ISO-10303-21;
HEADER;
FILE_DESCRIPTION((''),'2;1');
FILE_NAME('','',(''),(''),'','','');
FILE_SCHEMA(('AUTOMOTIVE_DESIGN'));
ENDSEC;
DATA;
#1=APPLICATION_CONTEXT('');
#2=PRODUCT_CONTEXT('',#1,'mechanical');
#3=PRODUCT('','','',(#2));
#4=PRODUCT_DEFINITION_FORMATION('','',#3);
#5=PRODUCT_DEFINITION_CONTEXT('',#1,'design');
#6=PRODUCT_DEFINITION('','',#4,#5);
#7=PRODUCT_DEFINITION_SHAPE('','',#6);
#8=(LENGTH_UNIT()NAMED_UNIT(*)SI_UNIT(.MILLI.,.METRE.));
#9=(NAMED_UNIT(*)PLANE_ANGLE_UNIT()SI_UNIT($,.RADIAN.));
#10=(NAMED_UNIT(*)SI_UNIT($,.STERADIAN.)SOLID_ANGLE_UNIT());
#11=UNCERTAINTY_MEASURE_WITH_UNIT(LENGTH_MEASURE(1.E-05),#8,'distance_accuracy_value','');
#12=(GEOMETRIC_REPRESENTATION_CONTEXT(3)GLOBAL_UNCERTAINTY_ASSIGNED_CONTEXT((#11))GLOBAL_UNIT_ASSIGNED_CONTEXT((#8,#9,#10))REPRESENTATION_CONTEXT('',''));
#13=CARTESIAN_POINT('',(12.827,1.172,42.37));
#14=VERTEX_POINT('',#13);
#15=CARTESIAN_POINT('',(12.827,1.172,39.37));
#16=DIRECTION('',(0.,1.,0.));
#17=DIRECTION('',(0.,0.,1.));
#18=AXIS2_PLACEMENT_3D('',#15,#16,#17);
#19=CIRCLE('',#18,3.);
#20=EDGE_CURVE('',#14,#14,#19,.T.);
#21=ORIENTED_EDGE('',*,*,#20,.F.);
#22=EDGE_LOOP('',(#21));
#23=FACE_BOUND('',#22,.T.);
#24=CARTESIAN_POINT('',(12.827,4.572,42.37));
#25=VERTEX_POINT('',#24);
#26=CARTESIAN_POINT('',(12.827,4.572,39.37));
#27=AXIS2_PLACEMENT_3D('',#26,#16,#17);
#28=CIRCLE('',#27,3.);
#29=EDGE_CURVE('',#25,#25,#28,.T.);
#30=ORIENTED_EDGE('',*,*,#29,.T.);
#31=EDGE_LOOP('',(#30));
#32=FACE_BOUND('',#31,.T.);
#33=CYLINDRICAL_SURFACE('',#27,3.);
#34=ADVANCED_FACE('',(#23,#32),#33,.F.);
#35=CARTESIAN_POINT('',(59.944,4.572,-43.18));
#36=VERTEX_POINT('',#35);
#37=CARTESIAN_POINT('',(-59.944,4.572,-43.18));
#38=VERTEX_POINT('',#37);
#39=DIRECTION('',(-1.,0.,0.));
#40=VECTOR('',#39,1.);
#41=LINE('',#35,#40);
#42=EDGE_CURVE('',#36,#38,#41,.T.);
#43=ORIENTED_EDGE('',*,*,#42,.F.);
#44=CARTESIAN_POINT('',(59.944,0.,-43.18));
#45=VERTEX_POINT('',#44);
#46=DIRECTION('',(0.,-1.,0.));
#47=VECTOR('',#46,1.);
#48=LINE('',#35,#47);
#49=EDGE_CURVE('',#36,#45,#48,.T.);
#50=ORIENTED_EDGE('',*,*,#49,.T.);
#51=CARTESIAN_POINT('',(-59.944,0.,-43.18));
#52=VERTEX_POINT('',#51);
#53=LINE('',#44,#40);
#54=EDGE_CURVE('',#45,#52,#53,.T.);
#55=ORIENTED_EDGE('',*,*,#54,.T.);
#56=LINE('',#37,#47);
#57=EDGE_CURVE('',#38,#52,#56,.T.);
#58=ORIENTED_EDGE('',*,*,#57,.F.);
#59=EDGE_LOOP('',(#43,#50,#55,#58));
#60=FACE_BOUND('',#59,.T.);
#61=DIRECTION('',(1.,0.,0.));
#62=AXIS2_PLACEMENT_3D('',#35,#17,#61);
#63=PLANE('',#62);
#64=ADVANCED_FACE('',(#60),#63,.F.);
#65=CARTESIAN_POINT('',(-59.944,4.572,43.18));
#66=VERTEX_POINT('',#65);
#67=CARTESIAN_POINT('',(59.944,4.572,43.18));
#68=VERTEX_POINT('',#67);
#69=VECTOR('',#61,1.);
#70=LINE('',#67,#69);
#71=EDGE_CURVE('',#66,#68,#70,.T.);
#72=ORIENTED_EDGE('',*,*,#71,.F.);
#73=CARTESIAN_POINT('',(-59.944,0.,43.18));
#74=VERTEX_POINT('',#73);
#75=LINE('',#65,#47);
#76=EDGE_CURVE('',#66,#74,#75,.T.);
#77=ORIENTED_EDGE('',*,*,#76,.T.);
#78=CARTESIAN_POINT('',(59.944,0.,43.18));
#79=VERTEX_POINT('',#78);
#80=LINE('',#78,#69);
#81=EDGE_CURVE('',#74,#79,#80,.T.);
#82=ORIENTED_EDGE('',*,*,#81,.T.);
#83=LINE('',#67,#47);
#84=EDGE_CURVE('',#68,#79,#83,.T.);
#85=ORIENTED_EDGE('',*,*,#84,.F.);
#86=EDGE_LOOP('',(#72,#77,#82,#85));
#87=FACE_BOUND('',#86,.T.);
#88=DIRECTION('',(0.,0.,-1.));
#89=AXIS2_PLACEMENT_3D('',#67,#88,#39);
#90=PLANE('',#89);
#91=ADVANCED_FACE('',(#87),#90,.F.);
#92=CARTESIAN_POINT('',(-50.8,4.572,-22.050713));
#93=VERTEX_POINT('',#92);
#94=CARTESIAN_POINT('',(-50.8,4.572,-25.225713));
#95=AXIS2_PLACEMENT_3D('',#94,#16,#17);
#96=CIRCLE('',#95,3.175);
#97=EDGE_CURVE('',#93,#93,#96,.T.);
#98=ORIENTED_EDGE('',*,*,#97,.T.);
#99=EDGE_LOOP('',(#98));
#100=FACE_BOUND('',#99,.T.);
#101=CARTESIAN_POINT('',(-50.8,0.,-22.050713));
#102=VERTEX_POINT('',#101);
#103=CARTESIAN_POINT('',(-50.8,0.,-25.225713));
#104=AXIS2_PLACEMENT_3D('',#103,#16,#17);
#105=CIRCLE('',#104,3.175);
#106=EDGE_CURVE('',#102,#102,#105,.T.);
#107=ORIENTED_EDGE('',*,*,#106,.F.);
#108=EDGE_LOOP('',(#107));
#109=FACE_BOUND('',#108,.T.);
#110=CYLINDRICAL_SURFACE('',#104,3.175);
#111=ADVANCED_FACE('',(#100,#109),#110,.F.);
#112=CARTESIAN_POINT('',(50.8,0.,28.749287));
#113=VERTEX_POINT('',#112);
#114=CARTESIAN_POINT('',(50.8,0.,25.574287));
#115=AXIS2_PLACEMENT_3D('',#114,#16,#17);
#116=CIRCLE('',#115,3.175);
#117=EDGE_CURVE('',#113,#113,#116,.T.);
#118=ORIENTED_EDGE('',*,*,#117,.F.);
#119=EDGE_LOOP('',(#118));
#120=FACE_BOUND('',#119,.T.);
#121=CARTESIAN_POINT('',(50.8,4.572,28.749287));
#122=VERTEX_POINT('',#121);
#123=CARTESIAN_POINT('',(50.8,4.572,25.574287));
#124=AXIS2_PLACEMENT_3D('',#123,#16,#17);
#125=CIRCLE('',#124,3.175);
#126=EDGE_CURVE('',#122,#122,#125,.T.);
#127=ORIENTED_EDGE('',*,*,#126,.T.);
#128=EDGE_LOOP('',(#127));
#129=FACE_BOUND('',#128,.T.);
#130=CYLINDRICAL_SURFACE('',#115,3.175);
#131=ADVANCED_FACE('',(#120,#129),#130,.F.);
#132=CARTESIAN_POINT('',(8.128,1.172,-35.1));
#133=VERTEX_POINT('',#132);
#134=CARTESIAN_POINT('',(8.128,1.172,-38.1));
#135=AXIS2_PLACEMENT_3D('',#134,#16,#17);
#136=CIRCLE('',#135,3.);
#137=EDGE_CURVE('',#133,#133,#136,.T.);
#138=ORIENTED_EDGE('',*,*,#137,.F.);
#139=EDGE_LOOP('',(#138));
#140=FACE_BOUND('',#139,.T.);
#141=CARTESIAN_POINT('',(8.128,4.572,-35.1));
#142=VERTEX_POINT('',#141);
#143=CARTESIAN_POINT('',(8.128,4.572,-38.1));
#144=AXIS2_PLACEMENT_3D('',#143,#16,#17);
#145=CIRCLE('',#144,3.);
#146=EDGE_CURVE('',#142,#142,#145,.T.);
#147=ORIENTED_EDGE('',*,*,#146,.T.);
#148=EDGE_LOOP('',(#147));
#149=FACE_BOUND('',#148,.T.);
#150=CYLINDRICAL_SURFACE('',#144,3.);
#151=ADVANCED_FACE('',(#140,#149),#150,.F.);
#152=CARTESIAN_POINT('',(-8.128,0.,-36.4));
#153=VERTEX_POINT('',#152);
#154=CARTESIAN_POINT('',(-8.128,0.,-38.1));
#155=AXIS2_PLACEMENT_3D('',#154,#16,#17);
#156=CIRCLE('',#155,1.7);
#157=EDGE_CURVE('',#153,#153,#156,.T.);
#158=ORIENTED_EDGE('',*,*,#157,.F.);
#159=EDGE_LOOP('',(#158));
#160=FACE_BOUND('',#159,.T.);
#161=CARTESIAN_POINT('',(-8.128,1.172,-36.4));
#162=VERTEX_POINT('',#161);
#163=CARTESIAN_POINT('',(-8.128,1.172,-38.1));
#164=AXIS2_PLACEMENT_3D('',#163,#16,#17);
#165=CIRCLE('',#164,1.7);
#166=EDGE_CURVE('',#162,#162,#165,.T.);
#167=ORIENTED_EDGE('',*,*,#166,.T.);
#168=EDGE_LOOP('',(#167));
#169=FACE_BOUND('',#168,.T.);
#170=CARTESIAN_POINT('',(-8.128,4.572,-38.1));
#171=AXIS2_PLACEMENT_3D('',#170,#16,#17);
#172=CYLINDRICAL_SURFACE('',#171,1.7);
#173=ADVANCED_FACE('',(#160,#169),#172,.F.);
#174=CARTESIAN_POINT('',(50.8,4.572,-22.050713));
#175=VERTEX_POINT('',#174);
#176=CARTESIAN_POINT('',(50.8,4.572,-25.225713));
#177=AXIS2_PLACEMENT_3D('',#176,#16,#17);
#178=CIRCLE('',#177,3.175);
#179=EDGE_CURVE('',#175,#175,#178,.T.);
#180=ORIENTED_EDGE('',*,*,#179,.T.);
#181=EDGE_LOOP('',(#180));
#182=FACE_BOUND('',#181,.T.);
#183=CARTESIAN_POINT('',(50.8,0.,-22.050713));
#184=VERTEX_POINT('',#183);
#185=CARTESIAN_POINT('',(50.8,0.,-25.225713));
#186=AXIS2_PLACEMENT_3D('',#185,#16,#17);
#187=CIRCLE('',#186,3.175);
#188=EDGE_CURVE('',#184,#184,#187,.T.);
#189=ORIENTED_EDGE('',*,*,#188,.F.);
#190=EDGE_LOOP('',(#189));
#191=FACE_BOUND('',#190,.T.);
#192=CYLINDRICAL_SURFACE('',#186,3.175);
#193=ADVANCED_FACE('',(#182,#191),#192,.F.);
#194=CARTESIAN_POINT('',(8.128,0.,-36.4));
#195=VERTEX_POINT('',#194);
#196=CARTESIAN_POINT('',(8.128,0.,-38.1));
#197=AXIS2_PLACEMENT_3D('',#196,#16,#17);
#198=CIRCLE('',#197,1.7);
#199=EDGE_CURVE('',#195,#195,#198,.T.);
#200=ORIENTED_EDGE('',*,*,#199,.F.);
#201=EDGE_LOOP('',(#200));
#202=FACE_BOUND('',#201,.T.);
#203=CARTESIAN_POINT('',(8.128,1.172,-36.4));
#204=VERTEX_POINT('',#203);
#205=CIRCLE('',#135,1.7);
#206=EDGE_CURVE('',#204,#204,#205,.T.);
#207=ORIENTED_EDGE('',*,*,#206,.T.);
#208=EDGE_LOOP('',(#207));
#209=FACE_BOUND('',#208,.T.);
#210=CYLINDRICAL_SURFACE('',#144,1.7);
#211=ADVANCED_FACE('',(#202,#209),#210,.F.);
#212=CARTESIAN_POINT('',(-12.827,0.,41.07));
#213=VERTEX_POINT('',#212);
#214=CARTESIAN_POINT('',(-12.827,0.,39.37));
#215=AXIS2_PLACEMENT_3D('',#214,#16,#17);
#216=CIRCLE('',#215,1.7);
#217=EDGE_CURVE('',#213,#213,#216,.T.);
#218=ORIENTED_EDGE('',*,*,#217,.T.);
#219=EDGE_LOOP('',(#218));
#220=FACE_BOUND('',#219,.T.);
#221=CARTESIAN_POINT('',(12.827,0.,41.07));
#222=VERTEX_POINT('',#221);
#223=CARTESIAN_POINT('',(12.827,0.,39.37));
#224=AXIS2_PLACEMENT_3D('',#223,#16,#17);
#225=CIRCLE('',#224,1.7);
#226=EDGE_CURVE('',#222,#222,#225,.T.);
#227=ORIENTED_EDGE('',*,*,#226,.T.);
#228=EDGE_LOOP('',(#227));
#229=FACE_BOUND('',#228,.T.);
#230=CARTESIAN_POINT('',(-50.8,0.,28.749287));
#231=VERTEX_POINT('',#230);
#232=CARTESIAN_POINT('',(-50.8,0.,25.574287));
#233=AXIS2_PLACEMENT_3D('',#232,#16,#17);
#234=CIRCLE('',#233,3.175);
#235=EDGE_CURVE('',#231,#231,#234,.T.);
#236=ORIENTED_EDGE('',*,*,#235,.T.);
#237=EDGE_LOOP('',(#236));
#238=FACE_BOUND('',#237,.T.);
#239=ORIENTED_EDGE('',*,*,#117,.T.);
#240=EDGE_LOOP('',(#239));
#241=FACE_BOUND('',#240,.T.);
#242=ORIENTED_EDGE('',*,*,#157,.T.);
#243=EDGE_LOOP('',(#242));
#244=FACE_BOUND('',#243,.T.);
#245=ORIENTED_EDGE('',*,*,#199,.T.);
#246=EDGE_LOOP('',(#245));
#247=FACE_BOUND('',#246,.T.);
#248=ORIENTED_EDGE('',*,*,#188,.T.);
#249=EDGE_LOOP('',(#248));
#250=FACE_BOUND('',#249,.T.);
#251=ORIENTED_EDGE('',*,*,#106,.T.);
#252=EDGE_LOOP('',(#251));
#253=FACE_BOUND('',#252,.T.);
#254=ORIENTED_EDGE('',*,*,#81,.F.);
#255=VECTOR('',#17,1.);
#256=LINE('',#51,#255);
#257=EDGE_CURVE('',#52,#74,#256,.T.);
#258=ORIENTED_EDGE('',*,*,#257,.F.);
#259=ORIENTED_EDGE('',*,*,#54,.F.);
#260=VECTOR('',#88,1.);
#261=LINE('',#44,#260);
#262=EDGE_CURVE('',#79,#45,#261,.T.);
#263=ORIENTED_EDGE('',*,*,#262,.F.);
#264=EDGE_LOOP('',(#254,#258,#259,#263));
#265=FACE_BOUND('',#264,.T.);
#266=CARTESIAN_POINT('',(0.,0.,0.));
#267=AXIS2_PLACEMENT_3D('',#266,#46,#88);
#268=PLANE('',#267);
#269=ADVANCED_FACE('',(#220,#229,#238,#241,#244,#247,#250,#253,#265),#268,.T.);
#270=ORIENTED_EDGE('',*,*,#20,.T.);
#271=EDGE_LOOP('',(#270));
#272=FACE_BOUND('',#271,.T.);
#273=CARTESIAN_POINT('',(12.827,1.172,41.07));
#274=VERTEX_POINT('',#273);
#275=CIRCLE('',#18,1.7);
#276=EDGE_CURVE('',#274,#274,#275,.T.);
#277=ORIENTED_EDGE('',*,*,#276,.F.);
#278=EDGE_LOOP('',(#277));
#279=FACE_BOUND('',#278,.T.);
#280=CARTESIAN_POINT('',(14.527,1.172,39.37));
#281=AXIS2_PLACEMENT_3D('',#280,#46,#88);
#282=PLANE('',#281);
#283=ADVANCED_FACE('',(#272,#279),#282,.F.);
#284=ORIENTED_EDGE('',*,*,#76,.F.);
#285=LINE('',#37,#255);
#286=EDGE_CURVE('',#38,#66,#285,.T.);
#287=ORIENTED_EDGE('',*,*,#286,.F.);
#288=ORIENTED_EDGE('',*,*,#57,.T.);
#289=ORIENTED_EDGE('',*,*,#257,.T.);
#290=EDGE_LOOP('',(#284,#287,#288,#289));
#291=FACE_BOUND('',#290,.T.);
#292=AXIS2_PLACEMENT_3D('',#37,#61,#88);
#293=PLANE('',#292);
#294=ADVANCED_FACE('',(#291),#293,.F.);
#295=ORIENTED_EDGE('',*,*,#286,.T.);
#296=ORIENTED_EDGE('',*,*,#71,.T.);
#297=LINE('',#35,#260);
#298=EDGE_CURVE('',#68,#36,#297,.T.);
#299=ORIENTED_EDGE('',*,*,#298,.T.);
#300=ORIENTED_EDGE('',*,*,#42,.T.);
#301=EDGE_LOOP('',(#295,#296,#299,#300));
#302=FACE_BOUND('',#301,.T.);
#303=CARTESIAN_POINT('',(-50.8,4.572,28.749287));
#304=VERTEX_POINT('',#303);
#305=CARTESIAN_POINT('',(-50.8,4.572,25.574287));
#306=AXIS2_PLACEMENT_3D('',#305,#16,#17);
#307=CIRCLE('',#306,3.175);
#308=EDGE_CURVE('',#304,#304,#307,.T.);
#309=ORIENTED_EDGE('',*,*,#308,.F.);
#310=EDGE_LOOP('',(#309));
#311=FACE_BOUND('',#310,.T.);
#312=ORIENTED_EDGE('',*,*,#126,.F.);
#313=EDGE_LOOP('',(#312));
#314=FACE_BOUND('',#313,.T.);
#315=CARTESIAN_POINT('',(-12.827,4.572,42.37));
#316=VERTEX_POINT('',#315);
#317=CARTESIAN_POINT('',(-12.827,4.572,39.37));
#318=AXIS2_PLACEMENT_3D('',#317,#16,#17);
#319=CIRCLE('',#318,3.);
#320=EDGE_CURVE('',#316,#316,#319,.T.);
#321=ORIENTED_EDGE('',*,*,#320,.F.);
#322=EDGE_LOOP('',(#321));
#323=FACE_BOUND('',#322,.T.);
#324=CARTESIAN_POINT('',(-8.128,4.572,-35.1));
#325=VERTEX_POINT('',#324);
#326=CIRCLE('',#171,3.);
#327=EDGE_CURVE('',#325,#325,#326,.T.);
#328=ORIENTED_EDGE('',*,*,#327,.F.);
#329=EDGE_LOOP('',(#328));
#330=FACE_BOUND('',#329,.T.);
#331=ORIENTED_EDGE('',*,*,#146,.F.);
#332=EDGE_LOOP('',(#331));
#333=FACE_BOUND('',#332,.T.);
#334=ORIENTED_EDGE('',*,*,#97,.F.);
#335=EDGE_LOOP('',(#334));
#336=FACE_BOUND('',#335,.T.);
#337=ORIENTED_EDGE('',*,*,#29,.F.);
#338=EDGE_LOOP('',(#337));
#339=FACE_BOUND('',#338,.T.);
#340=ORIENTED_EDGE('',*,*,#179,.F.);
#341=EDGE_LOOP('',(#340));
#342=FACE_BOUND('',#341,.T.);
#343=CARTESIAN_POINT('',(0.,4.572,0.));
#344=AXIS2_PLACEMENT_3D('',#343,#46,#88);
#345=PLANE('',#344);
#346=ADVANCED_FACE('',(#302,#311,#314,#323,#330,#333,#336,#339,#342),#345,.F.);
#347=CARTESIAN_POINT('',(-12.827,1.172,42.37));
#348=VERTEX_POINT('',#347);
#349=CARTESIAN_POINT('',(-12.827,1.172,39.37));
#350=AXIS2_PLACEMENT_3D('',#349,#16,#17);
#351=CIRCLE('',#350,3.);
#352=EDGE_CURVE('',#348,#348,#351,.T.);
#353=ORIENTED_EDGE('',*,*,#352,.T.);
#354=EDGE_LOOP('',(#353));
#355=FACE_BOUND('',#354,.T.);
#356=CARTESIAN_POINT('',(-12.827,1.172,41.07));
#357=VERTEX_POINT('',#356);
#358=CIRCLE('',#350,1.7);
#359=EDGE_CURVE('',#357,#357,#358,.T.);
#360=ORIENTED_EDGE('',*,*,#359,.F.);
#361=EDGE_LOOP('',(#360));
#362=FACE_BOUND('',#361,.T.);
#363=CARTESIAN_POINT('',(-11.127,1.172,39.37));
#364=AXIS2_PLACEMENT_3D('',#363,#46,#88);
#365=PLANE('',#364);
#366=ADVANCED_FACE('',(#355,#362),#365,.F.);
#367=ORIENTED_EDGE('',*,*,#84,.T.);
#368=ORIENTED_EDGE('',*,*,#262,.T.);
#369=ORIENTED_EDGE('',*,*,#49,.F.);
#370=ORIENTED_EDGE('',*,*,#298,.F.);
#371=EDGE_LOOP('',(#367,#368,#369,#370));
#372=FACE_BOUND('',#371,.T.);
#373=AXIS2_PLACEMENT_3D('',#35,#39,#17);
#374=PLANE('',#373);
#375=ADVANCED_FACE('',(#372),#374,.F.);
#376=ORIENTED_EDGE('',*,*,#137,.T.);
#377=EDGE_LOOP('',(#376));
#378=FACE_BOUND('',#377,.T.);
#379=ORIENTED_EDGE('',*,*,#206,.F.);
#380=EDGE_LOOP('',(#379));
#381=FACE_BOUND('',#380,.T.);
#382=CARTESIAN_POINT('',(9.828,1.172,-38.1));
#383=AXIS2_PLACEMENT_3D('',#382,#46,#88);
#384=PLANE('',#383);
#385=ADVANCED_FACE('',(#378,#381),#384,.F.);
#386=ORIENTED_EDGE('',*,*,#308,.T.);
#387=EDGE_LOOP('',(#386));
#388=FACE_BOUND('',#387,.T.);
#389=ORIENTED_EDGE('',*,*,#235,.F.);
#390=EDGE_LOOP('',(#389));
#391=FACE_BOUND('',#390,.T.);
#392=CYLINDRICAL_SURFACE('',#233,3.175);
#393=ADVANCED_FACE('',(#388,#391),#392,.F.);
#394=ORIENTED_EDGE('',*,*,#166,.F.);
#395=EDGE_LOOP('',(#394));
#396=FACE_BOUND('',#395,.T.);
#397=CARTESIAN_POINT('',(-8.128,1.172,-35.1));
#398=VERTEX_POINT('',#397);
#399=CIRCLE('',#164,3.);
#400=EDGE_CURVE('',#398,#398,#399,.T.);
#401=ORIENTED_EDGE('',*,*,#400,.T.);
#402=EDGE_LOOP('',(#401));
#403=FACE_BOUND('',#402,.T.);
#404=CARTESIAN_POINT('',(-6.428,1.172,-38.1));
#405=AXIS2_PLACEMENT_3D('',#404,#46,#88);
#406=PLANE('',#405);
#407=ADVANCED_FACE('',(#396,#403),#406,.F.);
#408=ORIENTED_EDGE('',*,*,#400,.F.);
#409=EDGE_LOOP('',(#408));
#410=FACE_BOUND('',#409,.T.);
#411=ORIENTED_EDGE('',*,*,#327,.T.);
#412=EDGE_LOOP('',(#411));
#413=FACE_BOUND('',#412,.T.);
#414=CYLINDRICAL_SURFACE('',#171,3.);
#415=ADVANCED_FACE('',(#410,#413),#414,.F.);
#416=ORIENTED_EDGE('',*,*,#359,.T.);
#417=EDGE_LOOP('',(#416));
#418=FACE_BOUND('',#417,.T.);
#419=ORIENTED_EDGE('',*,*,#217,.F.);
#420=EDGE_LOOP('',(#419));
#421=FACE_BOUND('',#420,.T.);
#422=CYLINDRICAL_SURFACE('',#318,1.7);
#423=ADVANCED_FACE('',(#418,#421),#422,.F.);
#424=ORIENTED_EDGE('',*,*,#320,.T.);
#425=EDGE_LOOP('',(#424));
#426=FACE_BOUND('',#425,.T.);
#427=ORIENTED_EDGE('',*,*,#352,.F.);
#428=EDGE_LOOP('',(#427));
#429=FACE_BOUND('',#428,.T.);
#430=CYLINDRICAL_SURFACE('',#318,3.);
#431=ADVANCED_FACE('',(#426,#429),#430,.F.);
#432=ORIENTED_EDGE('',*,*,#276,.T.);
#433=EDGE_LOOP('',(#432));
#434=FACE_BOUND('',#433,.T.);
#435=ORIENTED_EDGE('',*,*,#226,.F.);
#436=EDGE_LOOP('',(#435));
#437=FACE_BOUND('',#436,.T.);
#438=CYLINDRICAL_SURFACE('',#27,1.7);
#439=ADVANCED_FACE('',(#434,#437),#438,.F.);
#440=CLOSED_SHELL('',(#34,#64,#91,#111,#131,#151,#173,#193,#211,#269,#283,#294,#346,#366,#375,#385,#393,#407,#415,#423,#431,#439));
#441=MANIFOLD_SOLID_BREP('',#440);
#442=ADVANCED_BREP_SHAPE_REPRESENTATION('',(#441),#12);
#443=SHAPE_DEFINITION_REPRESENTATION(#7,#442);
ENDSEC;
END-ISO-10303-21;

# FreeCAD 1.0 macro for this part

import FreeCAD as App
import Part
import Sketcher
from FreeCAD import Vector
Q = App.Units.Quantity

doc = App.newDocument("Part")
body = doc.addObject("PartDesign::Body", "Body")

# Sketch on XZ plane
sketch1 = body.newObject("Sketcher::SketchObject", "Sketch")
sketch1.AttachmentSupport = (doc.getObject("XZ_Plane"), [""])
sketch1.MapMode = "FlatFace"
sketch1.addGeometry(Part.LineSegment(Vector(-59.944, -43.18, 0), Vector(-59.944, 43.18, 0)), False)
sketch1.addGeometry(Part.LineSegment(Vector(-59.944, 43.18, 0), Vector(59.944, 43.18, 0)), False)
sketch1.addGeometry(Part.LineSegment(Vector(59.944, 43.18, 0), Vector(59.944, -43.18, 0)), False)
sketch1.addGeometry(Part.LineSegment(Vector(59.944, -43.18, 0), Vector(-59.944, -43.18, 0)), False)
sketch1.addConstraint(Sketcher.Constraint("Coincident", 0, 2, 1, 1))
sketch1.addConstraint(Sketcher.Constraint("Coincident", 1, 2, 2, 1))
sketch1.addConstraint(Sketcher.Constraint("Coincident", 2, 2, 3, 1))
sketch1.addConstraint(Sketcher.Constraint("Coincident", 3, 2, 0, 1))
sketch1.addConstraint(Sketcher.Constraint("Vertical", 0))
sketch1.addConstraint(Sketcher.Constraint("Horizontal", 1))
sketch1.addConstraint(Sketcher.Constraint("Vertical", 2))
sketch1.addConstraint(Sketcher.Constraint("Horizontal", 3))
sketch1.addConstraint(Sketcher.Constraint("Symmetric", 0, 2, 2, 2, -1, 1))
sketch1.addConstraint(Sketcher.Constraint("DistanceY", 0, 1, 0, 2, Q("3.4 in")))
sketch1.addConstraint(Sketcher.Constraint("DistanceX", 1, 1, 1, 2, Q("4.72 in")))
pad1 = body.newObject("PartDesign::Pad", "Pad")
pad1.Profile = sketch1
pad1.Length = Q("0.18 in")
pad1.Reversed = True

# Sketch on XZ plane
sketch2 = body.newObject("Sketcher::SketchObject", "Sketch001")
sketch2.AttachmentSupport = (doc.getObject("XZ_Plane"), [""])
sketch2.MapMode = "FlatFace"
sketch2.AttachmentOffset = App.Placement(Vector(0, 0, -0.18 * 25.4), App.Rotation())
sketch2.addGeometry(Part.Circle(Vector(8.128, -38.1, 0), Vector(0, 0, 1), 1.7), False)
sketch2.addGeometry(Part.Circle(Vector(12.827, 39.37, 0), Vector(0, 0, 1), 1.7), False)
sketch2.addGeometry(Part.Circle(Vector(-12.827, 39.37, 0), Vector(0, 0, 1), 1.7), False)
sketch2.addGeometry(Part.Circle(Vector(-8.128, -38.1, 0), Vector(0, 0, 1), 1.7), False)
sketch2.addConstraint(Sketcher.Constraint("Equal", 0, 1))
sketch2.addConstraint(Sketcher.Constraint("Equal", 1, 2))
sketch2.addConstraint(Sketcher.Constraint("Equal", 2, 3))
sketch2.addConstraint(Sketcher.Constraint("Symmetric", 1, 3, 2, 3, -2))
sketch2.addConstraint(Sketcher.Constraint("Symmetric", 0, 3, 3, 3, -2))
sketch2.addConstraint(Sketcher.Constraint("DistanceY", 0, 3, -1, 1, Q("1.5 in")))
sketch2.addConstraint(Sketcher.Constraint("Diameter", 0, 3.4))
sketch2.addConstraint(Sketcher.Constraint("DistanceX", -1, 1, 0, 3, Q("0.32 in")))
sketch2.addConstraint(Sketcher.Constraint("DistanceY", -1, 1, 1, 3, Q("1.55 in")))
sketch2.addConstraint(Sketcher.Constraint("DistanceX", 2, 3, 1, 3, Q("1.01 in")))
doc.recompute()
hole = body.newObject("PartDesign::Hole", "Hole")
hole.Profile = sketch2
hole.ThreadType = "None"
hole.Diameter = 3.4
hole.DepthType = "ThroughAll"
hole.HoleCutType = "Counterbore"
hole.HoleCutDiameter = 6
hole.HoleCutDepth = 3.4
hole.Reversed = True

# Sketch on XZ plane
sketch3 = body.newObject("Sketcher::SketchObject", "Sketch002")
sketch3.AttachmentSupport = (doc.getObject("XZ_Plane"), [""])
sketch3.MapMode = "FlatFace"
sketch3.AttachmentOffset = App.Placement(Vector(0, 0, -0.18 * 25.4), App.Rotation())
sketch3.addGeometry(Part.Circle(Vector(50.8, -25.225713, 0), Vector(0, 0, 1), 3.175), False)
sketch3.addGeometry(Part.Circle(Vector(50.8, 25.574287, 0), Vector(0, 0, 1), 3.175), False)
sketch3.addGeometry(Part.Circle(Vector(-50.8, -25.225713, 0), Vector(0, 0, 1), 3.175), False)
sketch3.addGeometry(Part.Circle(Vector(-50.8, 25.574287, 0), Vector(0, 0, 1), 3.175), False)
sketch3.addConstraint(Sketcher.Constraint("Equal", 0, 1))
sketch3.addConstraint(Sketcher.Constraint("Equal", 1, 2))
sketch3.addConstraint(Sketcher.Constraint("Equal", 2, 3))
sketch3.addConstraint(Sketcher.Constraint("Symmetric", 0, 3, 2, 3, -2))
sketch3.addConstraint(Sketcher.Constraint("Symmetric", 1, 3, 3, 3, -2))
sketch3.addConstraint(Sketcher.Constraint("Vertical", 0, 3, 1, 3))
sketch3.addConstraint(Sketcher.Constraint("Diameter", 0, Q("0.25 in")))
sketch3.addConstraint(Sketcher.Constraint("DistanceX", -1, 1, 0, 3, Q("2 in")))
sketch3.addConstraint(Sketcher.Constraint("DistanceY", 0, 3, 1, 3, Q("2 in")))
sketch3.addConstraint(Sketcher.Constraint("DistanceY", 0, 3, -1, 1, 25.225713))
pocket1 = body.newObject("PartDesign::Pocket", "Pocket")
pocket1.Profile = sketch3
pocket1.Type = "ThroughAll"
pocket1.Reversed = True

doc.recompute()
